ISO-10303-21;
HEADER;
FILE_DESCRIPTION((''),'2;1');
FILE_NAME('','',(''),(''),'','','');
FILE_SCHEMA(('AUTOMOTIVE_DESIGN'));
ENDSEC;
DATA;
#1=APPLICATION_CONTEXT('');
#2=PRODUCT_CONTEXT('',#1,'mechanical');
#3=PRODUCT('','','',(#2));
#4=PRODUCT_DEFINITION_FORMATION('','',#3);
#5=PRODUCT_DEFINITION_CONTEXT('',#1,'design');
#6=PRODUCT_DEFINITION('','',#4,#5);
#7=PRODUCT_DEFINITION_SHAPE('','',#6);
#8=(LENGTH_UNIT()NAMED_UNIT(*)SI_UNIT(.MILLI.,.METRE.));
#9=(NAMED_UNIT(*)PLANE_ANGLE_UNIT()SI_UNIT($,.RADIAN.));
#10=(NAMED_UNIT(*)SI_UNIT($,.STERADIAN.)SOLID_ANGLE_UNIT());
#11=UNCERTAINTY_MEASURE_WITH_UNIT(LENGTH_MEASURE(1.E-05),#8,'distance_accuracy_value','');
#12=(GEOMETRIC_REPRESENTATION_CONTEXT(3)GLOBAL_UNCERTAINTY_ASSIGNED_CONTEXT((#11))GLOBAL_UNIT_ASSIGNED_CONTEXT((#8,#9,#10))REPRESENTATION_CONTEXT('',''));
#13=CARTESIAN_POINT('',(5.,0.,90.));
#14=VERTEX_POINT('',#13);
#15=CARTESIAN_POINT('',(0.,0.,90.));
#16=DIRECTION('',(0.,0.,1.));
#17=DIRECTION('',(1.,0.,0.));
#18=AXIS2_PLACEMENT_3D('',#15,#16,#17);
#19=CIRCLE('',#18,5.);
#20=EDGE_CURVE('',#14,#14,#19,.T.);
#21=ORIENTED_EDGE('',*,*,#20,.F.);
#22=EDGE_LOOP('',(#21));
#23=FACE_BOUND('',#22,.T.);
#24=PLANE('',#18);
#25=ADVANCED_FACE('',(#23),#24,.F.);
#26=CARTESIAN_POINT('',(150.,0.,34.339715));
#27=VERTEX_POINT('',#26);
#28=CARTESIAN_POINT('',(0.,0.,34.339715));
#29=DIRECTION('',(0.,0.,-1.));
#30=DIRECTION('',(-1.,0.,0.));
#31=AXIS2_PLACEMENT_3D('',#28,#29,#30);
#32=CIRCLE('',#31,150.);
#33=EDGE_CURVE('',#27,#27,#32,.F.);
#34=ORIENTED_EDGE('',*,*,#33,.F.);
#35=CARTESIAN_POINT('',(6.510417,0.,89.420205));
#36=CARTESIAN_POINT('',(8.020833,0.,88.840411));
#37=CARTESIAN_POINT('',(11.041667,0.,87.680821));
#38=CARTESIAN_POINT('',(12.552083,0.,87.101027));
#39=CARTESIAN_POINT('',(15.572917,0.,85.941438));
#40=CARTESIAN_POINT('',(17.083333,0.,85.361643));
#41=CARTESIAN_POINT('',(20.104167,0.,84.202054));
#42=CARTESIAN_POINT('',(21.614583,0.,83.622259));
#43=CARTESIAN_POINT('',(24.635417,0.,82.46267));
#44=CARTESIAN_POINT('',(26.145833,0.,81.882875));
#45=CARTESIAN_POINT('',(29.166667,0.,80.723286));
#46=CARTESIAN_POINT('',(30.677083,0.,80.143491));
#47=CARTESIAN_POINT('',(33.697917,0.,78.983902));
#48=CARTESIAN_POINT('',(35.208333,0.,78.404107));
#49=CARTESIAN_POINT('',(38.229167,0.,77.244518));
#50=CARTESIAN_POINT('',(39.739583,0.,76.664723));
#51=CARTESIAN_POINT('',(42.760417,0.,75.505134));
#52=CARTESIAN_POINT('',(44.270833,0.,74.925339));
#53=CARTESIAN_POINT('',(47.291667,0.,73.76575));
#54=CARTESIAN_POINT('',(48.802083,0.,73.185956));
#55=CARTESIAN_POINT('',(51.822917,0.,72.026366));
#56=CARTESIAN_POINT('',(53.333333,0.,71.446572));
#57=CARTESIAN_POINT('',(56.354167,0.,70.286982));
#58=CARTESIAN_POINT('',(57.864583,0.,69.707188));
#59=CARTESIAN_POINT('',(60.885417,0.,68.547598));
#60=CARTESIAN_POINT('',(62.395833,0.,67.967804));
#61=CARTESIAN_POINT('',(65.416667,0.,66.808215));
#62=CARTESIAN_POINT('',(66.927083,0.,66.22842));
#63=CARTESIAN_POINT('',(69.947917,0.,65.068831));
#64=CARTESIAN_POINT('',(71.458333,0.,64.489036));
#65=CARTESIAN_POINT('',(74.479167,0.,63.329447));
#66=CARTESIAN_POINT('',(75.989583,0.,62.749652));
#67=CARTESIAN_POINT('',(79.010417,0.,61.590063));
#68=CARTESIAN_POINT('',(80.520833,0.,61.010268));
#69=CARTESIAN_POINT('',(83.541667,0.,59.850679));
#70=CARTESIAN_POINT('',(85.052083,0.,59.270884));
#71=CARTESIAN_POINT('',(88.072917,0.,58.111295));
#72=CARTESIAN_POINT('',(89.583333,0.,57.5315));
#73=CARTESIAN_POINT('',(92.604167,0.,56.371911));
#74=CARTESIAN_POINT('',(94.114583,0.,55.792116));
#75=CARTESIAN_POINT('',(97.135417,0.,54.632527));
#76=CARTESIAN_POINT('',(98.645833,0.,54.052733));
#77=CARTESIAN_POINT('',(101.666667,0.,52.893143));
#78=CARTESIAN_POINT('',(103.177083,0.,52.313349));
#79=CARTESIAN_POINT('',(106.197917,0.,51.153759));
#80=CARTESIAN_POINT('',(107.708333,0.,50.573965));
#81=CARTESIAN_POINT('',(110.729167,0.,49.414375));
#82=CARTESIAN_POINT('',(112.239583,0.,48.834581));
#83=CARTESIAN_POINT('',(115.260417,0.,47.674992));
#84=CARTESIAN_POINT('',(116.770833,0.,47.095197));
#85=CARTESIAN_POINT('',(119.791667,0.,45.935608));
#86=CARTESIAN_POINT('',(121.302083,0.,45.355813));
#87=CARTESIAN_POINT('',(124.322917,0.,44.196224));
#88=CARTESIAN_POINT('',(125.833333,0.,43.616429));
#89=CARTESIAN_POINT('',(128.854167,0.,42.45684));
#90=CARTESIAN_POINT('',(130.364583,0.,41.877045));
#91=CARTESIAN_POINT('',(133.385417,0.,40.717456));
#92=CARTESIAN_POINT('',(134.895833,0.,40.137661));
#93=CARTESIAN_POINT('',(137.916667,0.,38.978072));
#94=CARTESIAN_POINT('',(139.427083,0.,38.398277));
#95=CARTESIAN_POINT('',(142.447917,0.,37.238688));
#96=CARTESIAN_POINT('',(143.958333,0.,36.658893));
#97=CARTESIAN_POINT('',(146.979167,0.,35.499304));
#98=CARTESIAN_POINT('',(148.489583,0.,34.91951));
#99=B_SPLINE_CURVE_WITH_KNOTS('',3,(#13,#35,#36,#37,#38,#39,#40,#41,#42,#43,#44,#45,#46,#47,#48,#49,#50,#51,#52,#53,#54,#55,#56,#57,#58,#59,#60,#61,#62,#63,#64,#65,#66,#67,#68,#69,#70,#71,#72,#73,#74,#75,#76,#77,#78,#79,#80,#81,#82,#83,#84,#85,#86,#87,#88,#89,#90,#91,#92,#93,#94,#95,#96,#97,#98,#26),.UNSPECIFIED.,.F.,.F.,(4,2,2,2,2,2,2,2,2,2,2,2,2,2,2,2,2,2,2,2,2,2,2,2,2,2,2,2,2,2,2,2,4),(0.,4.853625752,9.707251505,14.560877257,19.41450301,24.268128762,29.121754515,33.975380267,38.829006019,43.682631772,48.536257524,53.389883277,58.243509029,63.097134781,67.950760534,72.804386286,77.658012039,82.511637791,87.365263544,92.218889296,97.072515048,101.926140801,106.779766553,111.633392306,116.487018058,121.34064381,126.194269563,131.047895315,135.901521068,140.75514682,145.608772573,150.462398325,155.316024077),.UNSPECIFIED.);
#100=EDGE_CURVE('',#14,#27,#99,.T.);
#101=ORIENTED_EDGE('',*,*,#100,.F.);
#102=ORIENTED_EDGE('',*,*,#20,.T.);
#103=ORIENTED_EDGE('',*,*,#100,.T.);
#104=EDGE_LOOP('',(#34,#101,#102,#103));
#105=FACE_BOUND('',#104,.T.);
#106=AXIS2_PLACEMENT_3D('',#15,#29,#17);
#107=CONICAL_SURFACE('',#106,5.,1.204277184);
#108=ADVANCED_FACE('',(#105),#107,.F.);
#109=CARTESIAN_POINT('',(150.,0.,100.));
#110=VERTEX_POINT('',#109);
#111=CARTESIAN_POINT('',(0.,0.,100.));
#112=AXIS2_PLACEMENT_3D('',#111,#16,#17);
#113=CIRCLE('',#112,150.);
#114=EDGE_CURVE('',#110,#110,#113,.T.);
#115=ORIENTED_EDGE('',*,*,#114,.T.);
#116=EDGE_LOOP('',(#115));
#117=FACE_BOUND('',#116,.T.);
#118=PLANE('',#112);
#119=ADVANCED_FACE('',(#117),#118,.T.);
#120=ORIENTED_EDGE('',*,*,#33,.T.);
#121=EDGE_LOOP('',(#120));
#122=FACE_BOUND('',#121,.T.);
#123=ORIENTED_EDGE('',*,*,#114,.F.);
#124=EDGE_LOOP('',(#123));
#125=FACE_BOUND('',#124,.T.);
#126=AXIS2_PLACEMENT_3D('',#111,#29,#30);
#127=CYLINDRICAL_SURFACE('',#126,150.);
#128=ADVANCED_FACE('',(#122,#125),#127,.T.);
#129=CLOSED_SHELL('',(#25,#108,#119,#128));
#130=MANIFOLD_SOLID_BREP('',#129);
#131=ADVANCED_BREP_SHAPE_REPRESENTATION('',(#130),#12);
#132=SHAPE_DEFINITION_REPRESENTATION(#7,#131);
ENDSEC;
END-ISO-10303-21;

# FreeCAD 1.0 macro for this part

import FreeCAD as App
import Part
import Sketcher
from FreeCAD import Vector
Q = App.Units.Quantity


def faces_at(feature, points):
    """Names of the faces that lie closest to the given points."""
    faces = feature.Shape.Faces
    near = lambda p: min(range(len(faces)), key=lambda i: faces[i].distToShape(Part.Vertex(*p))[0])
    return sorted({f"Face{near(p) + 1}" for p in points})

doc = App.newDocument("Part")
params = doc.addObject("Spreadsheet::Sheet", "Params")
for row, (alias, value) in enumerate([
    ("sketch1_diameter", "300 mm"),
    ("pad1_length", "100 mm"),
    ("sketch2_diameter", "10 mm"),
    ("pad2_length", "100 mm"),
    ("draft_angle", "69 deg"),
], start=1):
    params.set(f"A{row}", alias)
    params.set(f"B{row}", "=" + value)
    params.setAlias(f"B{row}", alias)

body = doc.addObject("PartDesign::Body", "Body")

# Sketch on XY plane
sketch1 = doc.addObject("Sketcher::SketchObject", "Sketch")
body.addObject(sketch1)
sketch1.AttachmentSupport = (doc.XY_Plane, [""])
sketch1.MapMode = "FlatFace"
sketch1.addGeometry(Part.Circle(Vector(0, 0, 0), Vector(0, 0, 1), 150), False)
sketch1.addConstraint([
    Sketcher.Constraint("Coincident", 0, 3, -1, 1),
    Sketcher.Constraint("Diameter", 0, Q("300 mm")),
])
sketch1.setExpression("Constraints[1]", "Params.sketch1_diameter")
pad1 = doc.addObject("PartDesign::Pad", "Pad")
body.addObject(pad1)
pad1.Profile = sketch1
pad1.setExpression("Length", "Params.pad1_length")
body2 = doc.addObject("PartDesign::Body", "Body001")

# Sketch on XY plane
sketch2 = doc.addObject("Sketcher::SketchObject", "Sketch001")
body2.addObject(sketch2)
sketch2.AttachmentSupport = (doc.getObject("XY_Plane001"), [""])
sketch2.MapMode = "FlatFace"
sketch2.AttachmentOffset = App.Placement(Vector(0, 0, 90), App.Rotation())
sketch2.addGeometry(Part.Circle(Vector(0, 0, 0), Vector(0, 0, 1), 5), False)
sketch2.addConstraint([
    Sketcher.Constraint("Coincident", 0, 3, -1, 1),
    Sketcher.Constraint("Diameter", 0, Q("10 mm")),
])
sketch2.setExpression("Constraints[1]", "Params.sketch2_diameter")
pad2 = doc.addObject("PartDesign::Pad", "Pad001")
body2.addObject(pad2)
pad2.Profile = sketch2
pad2.setExpression("Length", "Params.pad2_length")
pad2.Reversed = True
doc.recompute()

datumplane = doc.addObject("PartDesign::Plane", "DatumPlane")
body2.addObject(datumplane)
datumplane.AttachmentSupport = (doc.getObject("XY_Plane001"), [""])
datumplane.MapMode = "FlatFace"
datumplane.AttachmentOffset = App.Placement(Vector(0, 0, 90), App.Rotation())
draft = doc.addObject("PartDesign::Draft", "Draft")
body2.addObject(draft)
draft.Base = (pad2, faces_at(pad2, [(-5, 0, 40)]))
draft.NeutralPlane = (datumplane, [""])
draft.setExpression("Angle", "Params.draft_angle")
draft.Reversed = False
doc.recompute()

boolean = doc.addObject("PartDesign::Boolean", "Boolean")
body.addObject(boolean)
boolean.Type = "Cut"
boolean.addObjects([body2])

doc.recompute()
